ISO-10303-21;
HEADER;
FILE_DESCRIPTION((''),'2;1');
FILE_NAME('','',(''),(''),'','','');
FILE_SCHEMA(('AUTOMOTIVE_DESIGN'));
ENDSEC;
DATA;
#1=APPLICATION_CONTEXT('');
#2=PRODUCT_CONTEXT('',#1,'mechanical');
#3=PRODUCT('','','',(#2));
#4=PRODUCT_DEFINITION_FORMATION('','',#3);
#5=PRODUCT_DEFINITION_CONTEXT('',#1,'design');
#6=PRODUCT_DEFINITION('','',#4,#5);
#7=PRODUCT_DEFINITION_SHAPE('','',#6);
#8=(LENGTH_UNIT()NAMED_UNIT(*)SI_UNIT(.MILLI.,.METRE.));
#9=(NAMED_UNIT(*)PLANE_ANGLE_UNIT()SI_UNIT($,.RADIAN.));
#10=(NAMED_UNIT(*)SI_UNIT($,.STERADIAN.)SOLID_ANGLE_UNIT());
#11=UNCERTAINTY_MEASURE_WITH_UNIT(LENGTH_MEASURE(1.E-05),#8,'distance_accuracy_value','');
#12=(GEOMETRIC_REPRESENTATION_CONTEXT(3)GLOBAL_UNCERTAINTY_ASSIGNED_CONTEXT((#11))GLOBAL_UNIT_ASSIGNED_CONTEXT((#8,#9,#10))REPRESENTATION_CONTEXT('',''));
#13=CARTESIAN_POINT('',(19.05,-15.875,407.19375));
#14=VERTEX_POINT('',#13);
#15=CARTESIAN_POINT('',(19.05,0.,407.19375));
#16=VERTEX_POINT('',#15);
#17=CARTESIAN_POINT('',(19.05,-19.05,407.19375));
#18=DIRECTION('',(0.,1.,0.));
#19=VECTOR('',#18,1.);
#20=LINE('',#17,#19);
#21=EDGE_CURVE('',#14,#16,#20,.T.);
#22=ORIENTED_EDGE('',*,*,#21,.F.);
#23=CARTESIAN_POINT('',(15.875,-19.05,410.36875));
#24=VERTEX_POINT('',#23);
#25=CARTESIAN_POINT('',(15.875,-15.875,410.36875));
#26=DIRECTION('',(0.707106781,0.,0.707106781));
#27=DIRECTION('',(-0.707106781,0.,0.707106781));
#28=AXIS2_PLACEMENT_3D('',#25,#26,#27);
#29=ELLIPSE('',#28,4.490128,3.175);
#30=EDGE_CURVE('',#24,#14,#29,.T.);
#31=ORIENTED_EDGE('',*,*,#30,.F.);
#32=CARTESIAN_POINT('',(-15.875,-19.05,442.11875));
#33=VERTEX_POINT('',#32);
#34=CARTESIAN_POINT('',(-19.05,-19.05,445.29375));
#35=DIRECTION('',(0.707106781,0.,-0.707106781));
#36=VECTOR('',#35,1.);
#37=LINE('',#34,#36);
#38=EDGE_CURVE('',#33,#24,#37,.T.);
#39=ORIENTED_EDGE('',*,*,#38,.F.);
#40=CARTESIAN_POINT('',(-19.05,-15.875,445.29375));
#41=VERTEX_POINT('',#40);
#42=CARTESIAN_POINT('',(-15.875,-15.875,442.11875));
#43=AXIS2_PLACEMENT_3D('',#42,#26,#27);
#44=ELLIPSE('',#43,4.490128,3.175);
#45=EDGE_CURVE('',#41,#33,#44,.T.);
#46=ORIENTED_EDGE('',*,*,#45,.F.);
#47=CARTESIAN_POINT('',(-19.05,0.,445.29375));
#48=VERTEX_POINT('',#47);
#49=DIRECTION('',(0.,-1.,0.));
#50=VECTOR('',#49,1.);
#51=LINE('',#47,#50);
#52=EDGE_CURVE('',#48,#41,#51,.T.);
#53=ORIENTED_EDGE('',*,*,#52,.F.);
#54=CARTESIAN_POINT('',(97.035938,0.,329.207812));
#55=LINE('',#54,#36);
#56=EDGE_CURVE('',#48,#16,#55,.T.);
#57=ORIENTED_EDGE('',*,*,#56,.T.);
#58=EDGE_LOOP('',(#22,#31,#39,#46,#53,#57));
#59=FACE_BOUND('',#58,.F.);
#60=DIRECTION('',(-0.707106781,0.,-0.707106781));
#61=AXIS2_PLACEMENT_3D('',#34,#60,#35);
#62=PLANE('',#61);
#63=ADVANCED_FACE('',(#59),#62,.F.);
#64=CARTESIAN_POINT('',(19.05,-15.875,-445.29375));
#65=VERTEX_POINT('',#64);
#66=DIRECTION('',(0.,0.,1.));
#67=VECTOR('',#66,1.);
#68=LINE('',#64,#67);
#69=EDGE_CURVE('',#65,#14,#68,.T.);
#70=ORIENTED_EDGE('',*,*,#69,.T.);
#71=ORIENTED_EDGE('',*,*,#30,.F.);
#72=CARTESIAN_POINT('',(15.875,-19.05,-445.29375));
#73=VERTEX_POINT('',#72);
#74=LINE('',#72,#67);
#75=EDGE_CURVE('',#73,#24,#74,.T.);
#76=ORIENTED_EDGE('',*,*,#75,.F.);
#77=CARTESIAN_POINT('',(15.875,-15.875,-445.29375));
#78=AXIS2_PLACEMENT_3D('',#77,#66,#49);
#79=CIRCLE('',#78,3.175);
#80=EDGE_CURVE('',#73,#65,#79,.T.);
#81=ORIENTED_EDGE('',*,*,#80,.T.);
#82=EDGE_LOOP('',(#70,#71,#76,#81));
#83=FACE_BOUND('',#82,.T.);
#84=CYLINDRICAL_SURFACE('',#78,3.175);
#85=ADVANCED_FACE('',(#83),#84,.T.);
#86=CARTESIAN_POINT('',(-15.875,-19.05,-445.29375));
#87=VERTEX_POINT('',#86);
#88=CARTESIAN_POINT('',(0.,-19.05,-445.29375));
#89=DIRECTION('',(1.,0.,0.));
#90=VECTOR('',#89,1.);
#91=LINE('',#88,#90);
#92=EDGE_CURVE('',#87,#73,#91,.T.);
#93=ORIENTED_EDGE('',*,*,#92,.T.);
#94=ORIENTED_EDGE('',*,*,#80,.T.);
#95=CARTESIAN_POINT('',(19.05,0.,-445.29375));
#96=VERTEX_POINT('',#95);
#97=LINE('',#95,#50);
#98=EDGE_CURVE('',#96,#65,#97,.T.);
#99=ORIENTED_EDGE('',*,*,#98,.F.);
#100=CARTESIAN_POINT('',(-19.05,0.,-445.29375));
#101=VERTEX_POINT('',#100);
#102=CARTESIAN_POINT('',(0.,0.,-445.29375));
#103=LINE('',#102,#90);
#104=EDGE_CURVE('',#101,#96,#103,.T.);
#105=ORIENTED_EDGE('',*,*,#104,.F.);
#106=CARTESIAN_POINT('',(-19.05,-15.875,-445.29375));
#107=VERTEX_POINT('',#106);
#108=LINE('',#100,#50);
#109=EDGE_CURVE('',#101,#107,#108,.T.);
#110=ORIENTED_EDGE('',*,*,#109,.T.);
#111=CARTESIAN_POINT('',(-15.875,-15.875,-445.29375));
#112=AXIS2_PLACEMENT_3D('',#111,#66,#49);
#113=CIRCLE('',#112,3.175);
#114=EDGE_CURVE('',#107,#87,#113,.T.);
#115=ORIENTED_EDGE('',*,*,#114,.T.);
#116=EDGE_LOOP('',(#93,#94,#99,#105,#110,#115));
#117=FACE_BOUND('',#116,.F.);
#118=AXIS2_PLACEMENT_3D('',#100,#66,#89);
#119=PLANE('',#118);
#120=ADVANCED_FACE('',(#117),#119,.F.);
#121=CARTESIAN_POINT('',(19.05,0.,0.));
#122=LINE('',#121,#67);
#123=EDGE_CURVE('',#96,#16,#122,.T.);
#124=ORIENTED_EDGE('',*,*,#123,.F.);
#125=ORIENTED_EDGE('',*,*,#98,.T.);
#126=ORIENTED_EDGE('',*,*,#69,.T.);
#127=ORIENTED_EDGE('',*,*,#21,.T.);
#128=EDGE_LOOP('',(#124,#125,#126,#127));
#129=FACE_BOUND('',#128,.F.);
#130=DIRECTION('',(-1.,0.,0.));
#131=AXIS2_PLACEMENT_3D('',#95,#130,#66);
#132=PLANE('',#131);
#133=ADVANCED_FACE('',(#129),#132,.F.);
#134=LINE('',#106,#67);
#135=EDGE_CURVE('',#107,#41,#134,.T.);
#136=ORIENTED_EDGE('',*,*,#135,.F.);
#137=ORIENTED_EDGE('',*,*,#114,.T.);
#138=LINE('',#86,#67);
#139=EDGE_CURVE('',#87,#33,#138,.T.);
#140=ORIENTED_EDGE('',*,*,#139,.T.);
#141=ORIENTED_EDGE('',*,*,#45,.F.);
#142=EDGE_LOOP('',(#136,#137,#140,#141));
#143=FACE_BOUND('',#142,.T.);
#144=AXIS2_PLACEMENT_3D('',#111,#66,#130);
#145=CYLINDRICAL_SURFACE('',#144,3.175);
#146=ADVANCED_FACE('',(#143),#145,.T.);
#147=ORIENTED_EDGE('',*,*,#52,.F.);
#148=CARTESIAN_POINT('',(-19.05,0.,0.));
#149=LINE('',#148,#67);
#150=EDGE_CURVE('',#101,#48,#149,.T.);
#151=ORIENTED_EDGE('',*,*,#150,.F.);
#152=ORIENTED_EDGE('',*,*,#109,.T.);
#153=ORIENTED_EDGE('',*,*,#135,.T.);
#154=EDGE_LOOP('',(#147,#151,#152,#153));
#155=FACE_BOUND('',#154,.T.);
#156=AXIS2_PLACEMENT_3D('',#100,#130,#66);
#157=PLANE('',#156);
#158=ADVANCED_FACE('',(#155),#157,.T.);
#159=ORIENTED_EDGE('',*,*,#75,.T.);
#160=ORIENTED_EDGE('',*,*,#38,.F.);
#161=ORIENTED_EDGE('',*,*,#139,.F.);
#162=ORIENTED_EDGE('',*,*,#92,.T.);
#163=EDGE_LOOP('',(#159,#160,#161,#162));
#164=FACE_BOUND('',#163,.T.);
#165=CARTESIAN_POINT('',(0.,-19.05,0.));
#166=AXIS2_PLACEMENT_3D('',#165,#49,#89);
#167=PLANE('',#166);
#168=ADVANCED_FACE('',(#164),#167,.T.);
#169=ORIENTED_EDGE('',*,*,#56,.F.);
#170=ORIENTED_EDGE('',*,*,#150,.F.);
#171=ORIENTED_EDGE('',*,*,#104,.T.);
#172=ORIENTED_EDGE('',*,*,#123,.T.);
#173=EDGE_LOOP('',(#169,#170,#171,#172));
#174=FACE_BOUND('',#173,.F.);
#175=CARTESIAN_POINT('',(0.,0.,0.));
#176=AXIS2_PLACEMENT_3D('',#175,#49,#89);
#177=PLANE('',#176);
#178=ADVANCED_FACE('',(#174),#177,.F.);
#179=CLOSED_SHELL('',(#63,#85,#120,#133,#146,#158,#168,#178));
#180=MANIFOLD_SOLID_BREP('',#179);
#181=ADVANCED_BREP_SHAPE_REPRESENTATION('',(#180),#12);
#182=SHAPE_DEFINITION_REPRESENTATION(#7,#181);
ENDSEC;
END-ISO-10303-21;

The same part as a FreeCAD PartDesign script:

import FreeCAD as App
import Part
import Sketcher
from FreeCAD import Vector
Q = App.Units.Quantity


def edges_at(feature, points):
    """Names of the edges that pass closest to the given points."""
    edges = feature.Shape.Edges
    near = lambda p: min(range(len(edges)), key=lambda i: edges[i].distToShape(Part.Vertex(*p))[0])
    return sorted({f"Edge{near(p) + 1}" for p in points})


def add_polygon(sketch, points):
    """Adds a closed chain of lines whose ends are joined by coincident constraints."""
    first, n = sketch.GeometryCount, len(points)
    for a, b in zip(points, points[1:] + points[:1]):
        sketch.addGeometry(Part.LineSegment(App.Vector(*a, 0), App.Vector(*b, 0)), False)
    for i in range(n):
        sketch.addConstraint(Sketcher.Constraint("Coincident", first + i, 2, first + (i + 1) % n, 1))

doc = App.newDocument("Part")
body = doc.addObject("PartDesign::Body", "Body")

sketch1 = body.newObject("Sketcher::SketchObject", "Sketch")
sketch1.AttachmentSupport = (doc.getObject("XZ_Plane"), [""])
sketch1.MapMode = "FlatFace"
add_polygon(sketch1, [(-19, 445), (-19, -445), (19, -445), (19, 445)])
sketch1.addConstraint(Sketcher.Constraint("Vertical", 0))
sketch1.addConstraint(Sketcher.Constraint("Horizontal", 1))
sketch1.addConstraint(Sketcher.Constraint("Vertical", 2))
sketch1.addConstraint(Sketcher.Constraint("Horizontal", 3))
sketch1.addConstraint(Sketcher.Constraint("Symmetric", 0, 2, 2, 2, -1, 1))
sketch1.addConstraint(Sketcher.Constraint("DistanceX", 1, 1, 1, 2, Q("1.5 in")))
sketch1.addConstraint(Sketcher.Constraint("DistanceY", 0, 2, 0, 1, Q("35.0625 in")))
pad1 = body.newObject("PartDesign::Pad", "Pad")
pad1.Profile = sketch1
pad1.Length = Q("0.75 in")

sketch2 = body.newObject("Sketcher::SketchObject", "Sketch001")
sketch2.AttachmentSupport = (doc.getObject("XZ_Plane"), [""])
sketch2.MapMode = "FlatFace"
sketch2.AttachmentOffset = App.Placement(Vector(0, 0, 0.75 * 25.4), App.Rotation())
add_polygon(sketch2, [(19, 445), (-19, 445), (19, 407)])
sketch2.addConstraint(Sketcher.Constraint("Horizontal", 0))
sketch2.addConstraint(Sketcher.Constraint("Vertical", 2))
sketch2.addConstraint(Sketcher.Constraint("Equal", 0, 2))
sketch2.addConstraint(Sketcher.Constraint("DistanceX", 0, 2, 0, 1, Q("1.5 in")))
sketch2.addConstraint(Sketcher.Constraint("DistanceX", 0, 2, -1, 1, Q("0.75 in")))
sketch2.addConstraint(Sketcher.Constraint("DistanceY", -1, 1, 0, 2, Q("17.53125 in")))
pocket1 = body.newObject("PartDesign::Pocket", "Pocket")
pocket1.Profile = sketch2
pocket1.Type = "ThroughAll"
doc.recompute()

fillet = body.newObject("PartDesign::Fillet", "Fillet")
fillet.Base = (pocket1, edges_at(pocket1, [(-19.05, -19.05, 0), (19.05, -19.05, -19.05)]))
fillet.Radius = Q("0.125 in")

doc.recompute()
